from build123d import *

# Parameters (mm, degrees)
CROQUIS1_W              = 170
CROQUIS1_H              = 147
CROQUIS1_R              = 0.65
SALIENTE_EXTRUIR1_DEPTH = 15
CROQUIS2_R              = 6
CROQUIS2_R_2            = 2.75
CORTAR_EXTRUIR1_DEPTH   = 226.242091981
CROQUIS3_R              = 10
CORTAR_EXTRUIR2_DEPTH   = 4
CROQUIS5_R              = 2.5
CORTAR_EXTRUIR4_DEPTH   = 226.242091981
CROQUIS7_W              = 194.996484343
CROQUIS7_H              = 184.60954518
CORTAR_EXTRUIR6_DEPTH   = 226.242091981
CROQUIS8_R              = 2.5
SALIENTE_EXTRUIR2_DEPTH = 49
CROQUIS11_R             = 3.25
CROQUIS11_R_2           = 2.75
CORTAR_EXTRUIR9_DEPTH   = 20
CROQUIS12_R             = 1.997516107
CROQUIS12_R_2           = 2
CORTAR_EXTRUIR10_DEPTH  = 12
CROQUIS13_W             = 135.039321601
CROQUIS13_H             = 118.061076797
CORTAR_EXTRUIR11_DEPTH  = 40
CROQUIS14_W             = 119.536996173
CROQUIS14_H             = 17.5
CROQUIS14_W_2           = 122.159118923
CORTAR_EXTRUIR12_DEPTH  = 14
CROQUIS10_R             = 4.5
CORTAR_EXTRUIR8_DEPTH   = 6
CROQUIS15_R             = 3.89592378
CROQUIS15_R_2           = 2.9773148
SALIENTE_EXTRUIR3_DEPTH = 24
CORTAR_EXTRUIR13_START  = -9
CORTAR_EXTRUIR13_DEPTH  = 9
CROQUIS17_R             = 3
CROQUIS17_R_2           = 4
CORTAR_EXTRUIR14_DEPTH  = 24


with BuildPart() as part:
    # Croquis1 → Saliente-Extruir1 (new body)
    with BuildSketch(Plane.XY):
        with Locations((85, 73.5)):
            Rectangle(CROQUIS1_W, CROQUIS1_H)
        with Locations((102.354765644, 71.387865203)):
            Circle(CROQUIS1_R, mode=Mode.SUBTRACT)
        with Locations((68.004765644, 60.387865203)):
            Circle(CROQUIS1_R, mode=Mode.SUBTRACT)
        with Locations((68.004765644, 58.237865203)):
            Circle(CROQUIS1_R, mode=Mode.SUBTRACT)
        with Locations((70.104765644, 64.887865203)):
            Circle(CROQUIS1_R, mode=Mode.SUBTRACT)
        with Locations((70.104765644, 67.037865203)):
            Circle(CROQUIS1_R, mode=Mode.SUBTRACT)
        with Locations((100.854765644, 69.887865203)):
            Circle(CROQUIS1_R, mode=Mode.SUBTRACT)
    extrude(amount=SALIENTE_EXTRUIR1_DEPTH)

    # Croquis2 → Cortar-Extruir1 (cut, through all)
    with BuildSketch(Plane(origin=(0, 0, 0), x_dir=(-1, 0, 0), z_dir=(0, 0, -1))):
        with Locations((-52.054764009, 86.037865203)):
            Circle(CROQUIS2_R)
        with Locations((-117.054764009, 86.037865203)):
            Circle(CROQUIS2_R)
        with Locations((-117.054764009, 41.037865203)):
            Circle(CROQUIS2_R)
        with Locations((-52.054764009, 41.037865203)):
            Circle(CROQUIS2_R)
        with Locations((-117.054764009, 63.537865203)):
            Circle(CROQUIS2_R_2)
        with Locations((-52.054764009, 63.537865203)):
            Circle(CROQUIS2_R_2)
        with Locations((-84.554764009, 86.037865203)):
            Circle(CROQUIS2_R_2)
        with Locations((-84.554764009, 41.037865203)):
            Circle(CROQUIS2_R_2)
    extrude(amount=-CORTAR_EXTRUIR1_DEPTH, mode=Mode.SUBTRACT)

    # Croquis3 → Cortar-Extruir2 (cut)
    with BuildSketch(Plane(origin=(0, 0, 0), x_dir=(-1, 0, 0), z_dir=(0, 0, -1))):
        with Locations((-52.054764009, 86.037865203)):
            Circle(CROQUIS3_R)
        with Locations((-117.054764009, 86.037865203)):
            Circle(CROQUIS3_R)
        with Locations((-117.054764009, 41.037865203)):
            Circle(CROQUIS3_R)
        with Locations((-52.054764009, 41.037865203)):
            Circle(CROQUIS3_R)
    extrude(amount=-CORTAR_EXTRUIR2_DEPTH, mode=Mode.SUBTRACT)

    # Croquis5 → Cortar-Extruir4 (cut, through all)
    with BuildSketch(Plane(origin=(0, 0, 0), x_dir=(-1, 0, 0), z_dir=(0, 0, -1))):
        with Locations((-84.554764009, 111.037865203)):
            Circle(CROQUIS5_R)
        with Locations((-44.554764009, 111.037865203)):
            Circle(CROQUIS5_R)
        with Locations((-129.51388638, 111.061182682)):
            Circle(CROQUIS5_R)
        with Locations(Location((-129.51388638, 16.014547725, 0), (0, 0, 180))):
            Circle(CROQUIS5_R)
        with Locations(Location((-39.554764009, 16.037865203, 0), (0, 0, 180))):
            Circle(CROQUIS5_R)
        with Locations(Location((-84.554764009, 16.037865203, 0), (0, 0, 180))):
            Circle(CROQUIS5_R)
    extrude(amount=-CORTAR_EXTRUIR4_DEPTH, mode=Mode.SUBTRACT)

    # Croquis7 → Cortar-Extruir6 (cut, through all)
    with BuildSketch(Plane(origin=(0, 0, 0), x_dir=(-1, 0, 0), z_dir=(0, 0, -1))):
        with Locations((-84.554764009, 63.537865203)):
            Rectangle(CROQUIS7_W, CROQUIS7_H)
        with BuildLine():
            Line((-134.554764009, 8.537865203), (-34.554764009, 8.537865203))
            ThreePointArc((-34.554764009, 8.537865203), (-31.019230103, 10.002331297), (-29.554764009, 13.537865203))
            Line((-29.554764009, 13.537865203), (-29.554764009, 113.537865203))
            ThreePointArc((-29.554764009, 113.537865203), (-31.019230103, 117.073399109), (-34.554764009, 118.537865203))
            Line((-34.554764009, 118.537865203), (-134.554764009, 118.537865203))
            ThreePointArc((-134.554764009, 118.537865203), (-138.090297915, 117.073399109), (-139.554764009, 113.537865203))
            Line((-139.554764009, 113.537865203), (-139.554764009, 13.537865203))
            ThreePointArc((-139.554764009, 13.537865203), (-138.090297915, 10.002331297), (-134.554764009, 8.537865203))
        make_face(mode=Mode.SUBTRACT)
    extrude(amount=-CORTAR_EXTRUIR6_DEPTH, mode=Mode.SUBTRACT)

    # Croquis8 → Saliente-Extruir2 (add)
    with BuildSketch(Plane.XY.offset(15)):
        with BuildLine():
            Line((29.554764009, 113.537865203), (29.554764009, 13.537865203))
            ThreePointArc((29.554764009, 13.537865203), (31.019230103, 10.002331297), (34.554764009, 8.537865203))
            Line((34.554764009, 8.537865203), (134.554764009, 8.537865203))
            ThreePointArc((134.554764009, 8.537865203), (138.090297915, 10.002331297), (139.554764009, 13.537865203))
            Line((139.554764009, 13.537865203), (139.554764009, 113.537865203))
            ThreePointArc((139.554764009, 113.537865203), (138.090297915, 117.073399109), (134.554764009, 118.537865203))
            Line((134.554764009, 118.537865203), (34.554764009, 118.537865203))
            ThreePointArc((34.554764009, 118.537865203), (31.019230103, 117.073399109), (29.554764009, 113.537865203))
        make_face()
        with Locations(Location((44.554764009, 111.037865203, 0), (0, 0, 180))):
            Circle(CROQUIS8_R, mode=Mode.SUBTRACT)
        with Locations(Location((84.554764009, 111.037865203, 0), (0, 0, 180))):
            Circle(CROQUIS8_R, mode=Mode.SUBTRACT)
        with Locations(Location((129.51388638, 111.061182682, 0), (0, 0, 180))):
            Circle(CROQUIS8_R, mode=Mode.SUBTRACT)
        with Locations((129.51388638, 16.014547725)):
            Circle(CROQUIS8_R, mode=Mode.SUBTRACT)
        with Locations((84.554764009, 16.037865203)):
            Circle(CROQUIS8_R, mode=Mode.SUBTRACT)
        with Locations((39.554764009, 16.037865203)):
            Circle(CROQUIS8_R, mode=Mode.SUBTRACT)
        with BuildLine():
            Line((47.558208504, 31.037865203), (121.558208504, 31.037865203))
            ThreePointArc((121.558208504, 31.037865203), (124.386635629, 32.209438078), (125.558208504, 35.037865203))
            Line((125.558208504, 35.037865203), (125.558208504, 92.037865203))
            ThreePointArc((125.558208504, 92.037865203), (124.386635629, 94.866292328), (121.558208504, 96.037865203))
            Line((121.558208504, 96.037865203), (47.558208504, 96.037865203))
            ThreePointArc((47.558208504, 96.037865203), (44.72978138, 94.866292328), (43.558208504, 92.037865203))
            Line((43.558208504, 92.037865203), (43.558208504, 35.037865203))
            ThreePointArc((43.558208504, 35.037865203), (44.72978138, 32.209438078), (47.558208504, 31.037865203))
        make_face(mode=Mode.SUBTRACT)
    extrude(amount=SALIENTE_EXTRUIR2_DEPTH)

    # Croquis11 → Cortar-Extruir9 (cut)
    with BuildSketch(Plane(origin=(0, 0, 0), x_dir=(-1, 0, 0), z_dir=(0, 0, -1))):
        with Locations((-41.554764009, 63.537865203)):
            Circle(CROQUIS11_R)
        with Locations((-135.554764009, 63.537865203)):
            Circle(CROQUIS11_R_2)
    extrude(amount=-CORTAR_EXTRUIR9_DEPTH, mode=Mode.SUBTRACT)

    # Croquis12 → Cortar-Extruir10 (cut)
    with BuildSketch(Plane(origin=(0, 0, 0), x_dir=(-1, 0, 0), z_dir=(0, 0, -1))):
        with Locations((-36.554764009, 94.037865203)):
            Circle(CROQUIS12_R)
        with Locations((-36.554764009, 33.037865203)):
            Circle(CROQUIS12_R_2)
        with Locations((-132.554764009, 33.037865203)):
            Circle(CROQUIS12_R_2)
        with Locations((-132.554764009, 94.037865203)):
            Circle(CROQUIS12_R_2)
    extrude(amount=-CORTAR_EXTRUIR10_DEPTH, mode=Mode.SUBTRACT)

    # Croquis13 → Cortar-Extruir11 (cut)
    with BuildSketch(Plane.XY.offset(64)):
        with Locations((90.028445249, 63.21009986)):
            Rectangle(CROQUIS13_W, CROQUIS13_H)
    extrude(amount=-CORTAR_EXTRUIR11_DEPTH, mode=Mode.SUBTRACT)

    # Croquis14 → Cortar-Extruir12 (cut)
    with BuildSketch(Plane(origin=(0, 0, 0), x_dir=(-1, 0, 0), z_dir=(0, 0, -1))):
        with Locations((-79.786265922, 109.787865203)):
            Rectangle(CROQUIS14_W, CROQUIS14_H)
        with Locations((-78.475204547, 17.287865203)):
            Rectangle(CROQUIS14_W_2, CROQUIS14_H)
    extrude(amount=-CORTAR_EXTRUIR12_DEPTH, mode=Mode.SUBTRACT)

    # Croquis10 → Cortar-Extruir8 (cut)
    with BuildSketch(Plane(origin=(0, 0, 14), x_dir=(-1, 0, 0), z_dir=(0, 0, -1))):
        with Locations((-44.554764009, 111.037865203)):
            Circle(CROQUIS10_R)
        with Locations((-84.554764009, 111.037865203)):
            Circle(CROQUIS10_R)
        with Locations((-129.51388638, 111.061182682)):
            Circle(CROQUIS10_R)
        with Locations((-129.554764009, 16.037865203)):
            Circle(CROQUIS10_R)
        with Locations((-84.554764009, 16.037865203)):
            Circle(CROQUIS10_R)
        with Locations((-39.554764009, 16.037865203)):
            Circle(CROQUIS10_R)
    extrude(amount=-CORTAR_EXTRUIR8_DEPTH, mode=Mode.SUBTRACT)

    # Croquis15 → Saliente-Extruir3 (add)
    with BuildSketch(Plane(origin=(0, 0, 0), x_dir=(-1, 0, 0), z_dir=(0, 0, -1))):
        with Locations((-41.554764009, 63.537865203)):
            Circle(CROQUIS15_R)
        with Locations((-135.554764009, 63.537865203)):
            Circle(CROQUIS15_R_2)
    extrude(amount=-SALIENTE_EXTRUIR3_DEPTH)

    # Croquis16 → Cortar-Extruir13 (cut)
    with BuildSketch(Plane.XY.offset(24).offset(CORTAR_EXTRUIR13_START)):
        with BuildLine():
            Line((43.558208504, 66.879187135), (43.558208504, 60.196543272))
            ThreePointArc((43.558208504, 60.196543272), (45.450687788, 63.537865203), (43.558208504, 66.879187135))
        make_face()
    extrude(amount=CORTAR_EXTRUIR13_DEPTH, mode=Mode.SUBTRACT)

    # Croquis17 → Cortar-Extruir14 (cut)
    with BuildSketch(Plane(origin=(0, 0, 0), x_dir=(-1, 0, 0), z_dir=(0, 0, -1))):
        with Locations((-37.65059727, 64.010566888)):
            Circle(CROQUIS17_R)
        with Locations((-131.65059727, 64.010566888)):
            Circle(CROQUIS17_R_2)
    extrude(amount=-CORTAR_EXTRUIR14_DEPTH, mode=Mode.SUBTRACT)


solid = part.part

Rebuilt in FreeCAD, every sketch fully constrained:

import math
import FreeCAD as App
import Part
import Sketcher
from FreeCAD import Vector

doc = App.newDocument("Part")
params = doc.addObject("Spreadsheet::Sheet", "Params")
for row, (alias, value) in enumerate([
    ("sketch1_diameter", "1.3 mm"),
    ("sketch1_width", "170 mm"),
    ("sketch1_height", "147 mm"),
    ("pad1_length", "15 mm"),
    ("sketch2_diameter", "12 mm"),
    ("sketch2_diameter2", "5.5 mm"),
    ("sketch3_diameter", "20 mm"),
    ("pocket2_length", "4 mm"),
    ("sketch4_diameter", "5 mm"),
    ("sketch5_radius", "5 mm"),
    ("sketch5_width", "100 mm"),
    ("sketch6_diameter", "5 mm"),
    ("sketch6_radius", "5 mm"),
    ("sketch6_radius2", "4 mm"),
    ("sketch6_width", "100 mm"),
    ("sketch6_width2", "74 mm"),
    ("pad2_length", "49 mm"),
    ("sketch7_diameter", "6.5 mm"),
    ("sketch7_diameter2", "5.5 mm"),
    ("pocket5_length", "20 mm"),
    ("sketch8_diameter", "4 mm"),
    ("pocket6_length", "12 mm"),
    ("pocket7_length", "40 mm"),
    ("sketch10_height", "17.5 mm"),
    ("pocket8_length", "14 mm"),
    ("sketch11_diameter", "9 mm"),
    ("pocket9_length", "6 mm"),
    ("pad3_length", "24 mm"),
    ("pocket10_length", "9 mm"),
    ("sketch14_diameter", "6 mm"),
    ("sketch14_diameter2", "8 mm"),
    ("pocket11_length", "24 mm"),
], start=1):
    params.set(f"A{row}", alias)
    params.set(f"B{row}", "=" + value)
    params.setAlias(f"B{row}", alias)

body = doc.addObject("PartDesign::Body", "Body")

sketch1 = body.newObject("Sketcher::SketchObject", "Sketch")
sketch1.AttachmentSupport = (doc.getObject("XY_Plane"), [""])
sketch1.MapMode = "FlatFace"
sketch1.addGeometry(Part.LineSegment(Vector(0, 147, 0), Vector(0, 0, 0)), False)
sketch1.addGeometry(Part.LineSegment(Vector(0, 0, 0), Vector(170, 0, 0)), False)
sketch1.addGeometry(Part.LineSegment(Vector(170, 0, 0), Vector(170, 147, 0)), False)
sketch1.addGeometry(Part.LineSegment(Vector(170, 147, 0), Vector(0, 147, 0)), False)
sketch1.addGeometry(Part.Circle(Vector(68, 58.2, 0), Vector(0, 0, 1), 0.7), False)
sketch1.addGeometry(Part.Circle(Vector(68, 60.4, 0), Vector(0, 0, 1), 0.7), False)
sketch1.addGeometry(Part.Circle(Vector(70.1, 64.9, 0), Vector(0, 0, 1), 0.7), False)
sketch1.addGeometry(Part.Circle(Vector(70.1, 67, 0), Vector(0, 0, 1), 0.7), False)
sketch1.addGeometry(Part.Circle(Vector(100.9, 69.9, 0), Vector(0, 0, 1), 0.7), False)
sketch1.addGeometry(Part.Circle(Vector(102.4, 71.4, 0), Vector(0, 0, 1), 0.7), False)
sketch1.addConstraint(Sketcher.Constraint("Coincident", 0, 2, 1, 1))
sketch1.addConstraint(Sketcher.Constraint("Coincident", 1, 2, 2, 1))
sketch1.addConstraint(Sketcher.Constraint("Coincident", 2, 2, 3, 1))
sketch1.addConstraint(Sketcher.Constraint("Coincident", 3, 2, 0, 1))
sketch1.addConstraint(Sketcher.Constraint("Vertical", 0))
sketch1.addConstraint(Sketcher.Constraint("Horizontal", 1))
sketch1.addConstraint(Sketcher.Constraint("Vertical", 2))
sketch1.addConstraint(Sketcher.Constraint("Horizontal", 3))
sketch1.addConstraint(Sketcher.Constraint("Coincident", 0, 2, -1, 1))
sketch1.addConstraint(Sketcher.Constraint("Equal", 4, 5))
sketch1.addConstraint(Sketcher.Constraint("Equal", 5, 6))
sketch1.addConstraint(Sketcher.Constraint("Equal", 6, 7))
sketch1.addConstraint(Sketcher.Constraint("Equal", 7, 8))
sketch1.addConstraint(Sketcher.Constraint("Equal", 8, 9))
sketch1.addConstraint(Sketcher.Constraint("Vertical", 4, 3, 5, 3))
sketch1.addConstraint(Sketcher.Constraint("Vertical", 6, 3, 7, 3))
sketch1.addConstraint(Sketcher.Constraint("Diameter", 4, 1.3))
sketch1.addConstraint(Sketcher.Constraint("DistanceX", 1, 1, 1, 2, 170.0))
sketch1.addConstraint(Sketcher.Constraint("DistanceY", 0, 2, 0, 1, 147.0))
sketch1.addConstraint(Sketcher.Constraint("DistanceY", 6, 3, 8, 3, 5.0))
sketch1.addConstraint(Sketcher.Constraint("DistanceY", 5, 3, 9, 3, 11.0))
sketch1.addConstraint(Sketcher.Constraint("DistanceX", 5, 3, 6, 3, 2.1))
sketch1.addConstraint(Sketcher.Constraint("DistanceY", 5, 3, 6, 3, 4.5))
sketch1.addConstraint(Sketcher.Constraint("DistanceY", 4, 3, 7, 3, 8.8))
sketch1.addConstraint(Sketcher.Constraint("DistanceX", 8, 3, 9, 3, 1.5))
sketch1.addConstraint(Sketcher.Constraint("DistanceY", 4, 3, 5, 3, 2.15))
sketch1.addConstraint(Sketcher.Constraint("DistanceX", 7, 3, 8, 3, 30.75))
sketch1.addConstraint(Sketcher.Constraint("DistanceX", -1, 1, 4, 3, 68.004766))
sketch1.addConstraint(Sketcher.Constraint("DistanceY", -1, 1, 4, 3, 58.237865))
sketch1.setExpression("Constraints[16]", "Params.sketch1_diameter")
sketch1.setExpression("Constraints[17]", "Params.sketch1_width")
sketch1.setExpression("Constraints[18]", "Params.sketch1_height")
pad1 = body.newObject("PartDesign::Pad", "Pad")
pad1.Profile = sketch1
pad1.setExpression("Length", "Params.pad1_length")

sketch2 = body.newObject("Sketcher::SketchObject", "Sketch001")
sketch2.AttachmentSupport = (doc.getObject("XY_Plane"), [""])
sketch2.MapMode = "FlatFace"
sketch2.addGeometry(Part.Circle(Vector(52.1, 86, 0), Vector(0, 0, 1), 6), False)
sketch2.addGeometry(Part.Circle(Vector(117.1, 86, 0), Vector(0, 0, 1), 6), False)
sketch2.addGeometry(Part.Circle(Vector(117.1, 41, 0), Vector(0, 0, 1), 6), False)
sketch2.addGeometry(Part.Circle(Vector(52.1, 41, 0), Vector(0, 0, 1), 6), False)
sketch2.addGeometry(Part.Circle(Vector(117.1, 63.5, 0), Vector(0, 0, 1), 2.8), False)
sketch2.addGeometry(Part.Circle(Vector(52.1, 63.5, 0), Vector(0, 0, 1), 2.8), False)
sketch2.addGeometry(Part.Circle(Vector(84.6, 86, 0), Vector(0, 0, 1), 2.8), False)
sketch2.addGeometry(Part.Circle(Vector(84.6, 41, 0), Vector(0, 0, 1), 2.8), False)
sketch2.addConstraint(Sketcher.Constraint("Equal", 0, 1))
sketch2.addConstraint(Sketcher.Constraint("Equal", 1, 2))
sketch2.addConstraint(Sketcher.Constraint("Equal", 2, 3))
sketch2.addConstraint(Sketcher.Constraint("Equal", 4, 5))
sketch2.addConstraint(Sketcher.Constraint("Equal", 5, 6))
sketch2.addConstraint(Sketcher.Constraint("Equal", 6, 7))
sketch2.addConstraint(Sketcher.Constraint("Horizontal", 0, 3, 1, 3))
sketch2.addConstraint(Sketcher.Constraint("Horizontal", 2, 3, 3, 3))
sketch2.addConstraint(Sketcher.Constraint("Horizontal", 4, 3, 5, 3))
sketch2.addConstraint(Sketcher.Constraint("Horizontal", 1, 3, 6, 3))
sketch2.addConstraint(Sketcher.Constraint("Horizontal", 3, 3, 7, 3))
sketch2.addConstraint(Sketcher.Constraint("Vertical", 1, 3, 2, 3))
sketch2.addConstraint(Sketcher.Constraint("Vertical", 0, 3, 3, 3))
sketch2.addConstraint(Sketcher.Constraint("Vertical", 2, 3, 4, 3))
sketch2.addConstraint(Sketcher.Constraint("Vertical", 3, 3, 5, 3))
sketch2.addConstraint(Sketcher.Constraint("Vertical", 6, 3, 7, 3))
sketch2.addConstraint(Sketcher.Constraint("Diameter", 0, 12.0))
sketch2.addConstraint(Sketcher.Constraint("Diameter", 4, 5.5))
sketch2.addConstraint(Sketcher.Constraint("DistanceX", 0, 3, 1, 3, 65.0))
sketch2.addConstraint(Sketcher.Constraint("DistanceY", 2, 3, 1, 3, 45.0))
sketch2.addConstraint(Sketcher.Constraint("DistanceY", 4, 3, 1, 3, 22.5))
sketch2.addConstraint(Sketcher.Constraint("DistanceX", 0, 3, 6, 3, 32.5))
sketch2.addConstraint(Sketcher.Constraint("DistanceX", -1, 1, 0, 3, 52.054764))
sketch2.addConstraint(Sketcher.Constraint("DistanceY", -1, 1, 0, 3, 86.037865))
sketch2.setExpression("Constraints[16]", "Params.sketch2_diameter")
sketch2.setExpression("Constraints[17]", "Params.sketch2_diameter2")
pocket1 = body.newObject("PartDesign::Pocket", "Pocket")
pocket1.Profile = sketch2
pocket1.Type = "ThroughAll"
pocket1.Reversed = True

sketch3 = body.newObject("Sketcher::SketchObject", "Sketch002")
sketch3.AttachmentSupport = (doc.getObject("XY_Plane"), [""])
sketch3.MapMode = "FlatFace"
sketch3.addGeometry(Part.Circle(Vector(52, 86, 0), Vector(0, 0, 1), 10), False)
sketch3.addGeometry(Part.Circle(Vector(117, 86, 0), Vector(0, 0, 1), 10), False)
sketch3.addGeometry(Part.Circle(Vector(117, 41, 0), Vector(0, 0, 1), 10), False)
sketch3.addGeometry(Part.Circle(Vector(52, 41, 0), Vector(0, 0, 1), 10), False)
sketch3.addConstraint(Sketcher.Constraint("Equal", 0, 1))
sketch3.addConstraint(Sketcher.Constraint("Equal", 1, 2))
sketch3.addConstraint(Sketcher.Constraint("Equal", 2, 3))
sketch3.addConstraint(Sketcher.Constraint("Horizontal", 0, 3, 1, 3))
sketch3.addConstraint(Sketcher.Constraint("Horizontal", 2, 3, 3, 3))
sketch3.addConstraint(Sketcher.Constraint("Vertical", 1, 3, 2, 3))
sketch3.addConstraint(Sketcher.Constraint("Vertical", 0, 3, 3, 3))
sketch3.addConstraint(Sketcher.Constraint("Diameter", 0, 20.0))
sketch3.addConstraint(Sketcher.Constraint("DistanceX", 0, 3, 1, 3, 65.0))
sketch3.addConstraint(Sketcher.Constraint("DistanceY", 2, 3, 1, 3, 45.0))
sketch3.addConstraint(Sketcher.Constraint("DistanceX", -1, 1, 0, 3, 52.054764))
sketch3.addConstraint(Sketcher.Constraint("DistanceY", -1, 1, 0, 3, 86.037865))
sketch3.setExpression("Constraints[7]", "Params.sketch3_diameter")
pocket2 = body.newObject("PartDesign::Pocket", "Pocket001")
pocket2.Profile = sketch3
pocket2.setExpression("Length", "Params.pocket2_length")
pocket2.Reversed = True

sketch4 = body.newObject("Sketcher::SketchObject", "Sketch003")
sketch4.AttachmentSupport = (doc.getObject("XY_Plane"), [""])
sketch4.MapMode = "FlatFace"
sketch4.addGeometry(Part.Circle(Vector(84.6, 111, 0), Vector(0, 0, 1), 2.5), False)
sketch4.addGeometry(Part.Circle(Vector(44.6, 111, 0), Vector(0, 0, 1), 2.5), False)
sketch4.addGeometry(Part.Circle(Vector(129.5, 111.1, 0), Vector(0, 0, 1), 2.5), False)
sketch4.addGeometry(Part.Circle(Vector(129.5, 16, 0), Vector(0, 0, 1), 2.5), False)
sketch4.addGeometry(Part.Circle(Vector(39.6, 16, 0), Vector(0, 0, 1), 2.5), False)
sketch4.addGeometry(Part.Circle(Vector(84.6, 16, 0), Vector(0, 0, 1), 2.5), False)
sketch4.addConstraint(Sketcher.Constraint("Equal", 0, 1))
sketch4.addConstraint(Sketcher.Constraint("Equal", 1, 2))
sketch4.addConstraint(Sketcher.Constraint("Equal", 2, 3))
sketch4.addConstraint(Sketcher.Constraint("Equal", 3, 4))
sketch4.addConstraint(Sketcher.Constraint("Equal", 4, 5))
sketch4.addConstraint(Sketcher.Constraint("Horizontal", 0, 3, 1, 3))
sketch4.addConstraint(Sketcher.Constraint("Horizontal", 4, 3, 5, 3))
sketch4.addConstraint(Sketcher.Constraint("Vertical", 2, 3, 3, 3))
sketch4.addConstraint(Sketcher.Constraint("Vertical", 0, 3, 5, 3))
sketch4.addConstraint(Sketcher.Constraint("Diameter", 0, 5.0))
sketch4.addConstraint(Sketcher.Constraint("DistanceX", 1, 3, 0, 3, 40.0))
sketch4.addConstraint(Sketcher.Constraint("DistanceX", 4, 3, 1, 3, 5.0))
sketch4.addConstraint(Sketcher.Constraint("DistanceY", 4, 3, 1, 3, 95.0))
sketch4.addConstraint(Sketcher.Constraint("DistanceX", -1, 1, 0, 3, 84.554764))
sketch4.addConstraint(Sketcher.Constraint("DistanceY", -1, 1, 0, 3, 111.037865))
sketch4.addConstraint(Sketcher.Constraint("DistanceX", -1, 1, 2, 3, 129.513886))
sketch4.addConstraint(Sketcher.Constraint("DistanceY", -1, 1, 2, 3, 111.061183))
sketch4.addConstraint(Sketcher.Constraint("DistanceY", -1, 1, 3, 3, 16.014548))
sketch4.setExpression("Constraints[9]", "Params.sketch4_diameter")
pocket3 = body.newObject("PartDesign::Pocket", "Pocket002")
pocket3.Profile = sketch4
pocket3.Type = "ThroughAll"
pocket3.Reversed = True

sketch5 = body.newObject("Sketcher::SketchObject", "Sketch004")
sketch5.AttachmentSupport = (doc.getObject("XY_Plane"), [""])
sketch5.MapMode = "FlatFace"
sketch5.addGeometry(Part.LineSegment(Vector(182, 156, 0), Vector(182, -29, 0)), False)
sketch5.addGeometry(Part.LineSegment(Vector(182, -29, 0), Vector(-13, -29, 0)), False)
sketch5.addGeometry(Part.LineSegment(Vector(-13, -29, 0), Vector(-13, 156, 0)), False)
sketch5.addGeometry(Part.LineSegment(Vector(-13, 156, 0), Vector(182, 156, 0)), False)
sketch5.addGeometry(Part.LineSegment(Vector(35, 9, 0), Vector(135, 9, 0)), False)
sketch5.addGeometry(Part.ArcOfCircle(Part.Circle(Vector(135, 14, 0), Vector(0, 0, 1), 5), math.radians(-90), math.radians(0)), False)
sketch5.addGeometry(Part.LineSegment(Vector(140, 14, 0), Vector(140, 114, 0)), False)
sketch5.addGeometry(Part.ArcOfCircle(Part.Circle(Vector(135, 114, 0), Vector(0, 0, 1), 5), math.radians(0), math.radians(90)), False)
sketch5.addGeometry(Part.LineSegment(Vector(135, 119, 0), Vector(35, 119, 0)), False)
sketch5.addGeometry(Part.ArcOfCircle(Part.Circle(Vector(35, 114, 0), Vector(0, 0, 1), 5), math.radians(90), math.radians(180)), False)
sketch5.addGeometry(Part.LineSegment(Vector(30, 114, 0), Vector(30, 14, 0)), False)
sketch5.addGeometry(Part.ArcOfCircle(Part.Circle(Vector(35, 14, 0), Vector(0, 0, 1), 5), math.radians(180), math.radians(270)), False)
sketch5.addConstraint(Sketcher.Constraint("Coincident", 0, 2, 1, 1))
sketch5.addConstraint(Sketcher.Constraint("Coincident", 1, 2, 2, 1))
sketch5.addConstraint(Sketcher.Constraint("Coincident", 2, 2, 3, 1))
sketch5.addConstraint(Sketcher.Constraint("Coincident", 3, 2, 0, 1))
sketch5.addConstraint(Sketcher.Constraint("Tangent", 4, 2, 5, 1))
sketch5.addConstraint(Sketcher.Constraint("Tangent", 5, 2, 6, 1))
sketch5.addConstraint(Sketcher.Constraint("Tangent", 6, 2, 7, 1))
sketch5.addConstraint(Sketcher.Constraint("Tangent", 7, 2, 8, 1))
sketch5.addConstraint(Sketcher.Constraint("Tangent", 8, 2, 9, 1))
sketch5.addConstraint(Sketcher.Constraint("Tangent", 9, 2, 10, 1))
sketch5.addConstraint(Sketcher.Constraint("Tangent", 10, 2, 11, 1))
sketch5.addConstraint(Sketcher.Constraint("Tangent", 11, 2, 4, 1))
sketch5.addConstraint(Sketcher.Constraint("Vertical", 0))
sketch5.addConstraint(Sketcher.Constraint("Horizontal", 1))
sketch5.addConstraint(Sketcher.Constraint("Vertical", 2))
sketch5.addConstraint(Sketcher.Constraint("Horizontal", 3))
sketch5.addConstraint(Sketcher.Constraint("Horizontal", 4))
sketch5.addConstraint(Sketcher.Constraint("Vertical", 6))
sketch5.addConstraint(Sketcher.Constraint("Horizontal", 8))
sketch5.addConstraint(Sketcher.Constraint("Vertical", 10))
sketch5.addConstraint(Sketcher.Constraint("Equal", 5, 7))
sketch5.addConstraint(Sketcher.Constraint("Equal", 7, 9))
sketch5.addConstraint(Sketcher.Constraint("Equal", 9, 11))
sketch5.addConstraint(Sketcher.Constraint("Equal", 8, 6))
sketch5.addConstraint(Sketcher.Constraint("Radius", 5, 5.0))
sketch5.addConstraint(Sketcher.Constraint("DistanceX", 4, 1, 4, 2, 100.0))
sketch5.addConstraint(Sketcher.Constraint("DistanceX", 1, 2, 1, 1, 194.996484))
sketch5.addConstraint(Sketcher.Constraint("DistanceY", 0, 2, 0, 1, 184.609545))
sketch5.addConstraint(Sketcher.Constraint("DistanceX", 1, 2, -1, 1, 12.943478))
sketch5.addConstraint(Sketcher.Constraint("DistanceX", -1, 1, 5, 3, 134.554764))
sketch5.addConstraint(Sketcher.Constraint("DistanceY", -1, 1, 5, 3, 13.537865))
sketch5.addConstraint(Sketcher.Constraint("DistanceY", 0, 2, -1, 1, 28.766907))
sketch5.setExpression("Constraints[24]", "Params.sketch5_radius")
sketch5.setExpression("Constraints[25]", "Params.sketch5_width")
pocket4 = body.newObject("PartDesign::Pocket", "Pocket003")
pocket4.Profile = sketch5
pocket4.Type = "ThroughAll"
pocket4.Reversed = True

sketch6 = body.newObject("Sketcher::SketchObject", "Sketch005")
sketch6.AttachmentSupport = (doc.getObject("XY_Plane"), [""])
sketch6.MapMode = "FlatFace"
sketch6.AttachmentOffset = App.Placement(Vector(0, 0, 15), App.Rotation())
sketch6.addGeometry(Part.LineSegment(Vector(29.6, 113.5, 0), Vector(29.6, 13.5, 0)), False)
sketch6.addGeometry(Part.ArcOfCircle(Part.Circle(Vector(34.6, 13.5, 0), Vector(0, 0, 1), 5), math.radians(180), math.radians(270)), False)
sketch6.addGeometry(Part.LineSegment(Vector(34.6, 8.5, 0), Vector(134.6, 8.5, 0)), False)
sketch6.addGeometry(Part.ArcOfCircle(Part.Circle(Vector(134.6, 13.5, 0), Vector(0, 0, 1), 5), math.radians(-90), math.radians(0)), False)
sketch6.addGeometry(Part.LineSegment(Vector(139.6, 13.5, 0), Vector(139.6, 113.5, 0)), False)
sketch6.addGeometry(Part.ArcOfCircle(Part.Circle(Vector(134.6, 113.5, 0), Vector(0, 0, 1), 5), math.radians(0), math.radians(90)), False)
sketch6.addGeometry(Part.LineSegment(Vector(134.6, 118.5, 0), Vector(34.6, 118.5, 0)), False)
sketch6.addGeometry(Part.ArcOfCircle(Part.Circle(Vector(34.6, 113.5, 0), Vector(0, 0, 1), 5), math.radians(90), math.radians(180)), False)
sketch6.addGeometry(Part.Circle(Vector(39.6, 16, 0), Vector(0, 0, 1), 2.5), False)
sketch6.addGeometry(Part.Circle(Vector(84.6, 16, 0), Vector(0, 0, 1), 2.5), False)
sketch6.addGeometry(Part.Circle(Vector(129.5, 16, 0), Vector(0, 0, 1), 2.5), False)
sketch6.addGeometry(Part.LineSegment(Vector(121.6, 31, 0), Vector(47.6, 31, 0)), False)
sketch6.addGeometry(Part.ArcOfCircle(Part.Circle(Vector(47.6, 35, 0), Vector(0, 0, 1), 4), math.radians(-180), math.radians(-90)), False)
sketch6.addGeometry(Part.LineSegment(Vector(43.6, 35, 0), Vector(43.6, 92, 0)), False)
sketch6.addGeometry(Part.ArcOfCircle(Part.Circle(Vector(47.6, 92, 0), Vector(0, 0, 1), 4), math.radians(90), math.radians(180)), False)
sketch6.addGeometry(Part.LineSegment(Vector(47.6, 96, 0), Vector(121.6, 96, 0)), False)
sketch6.addGeometry(Part.ArcOfCircle(Part.Circle(Vector(121.6, 92, 0), Vector(0, 0, 1), 4), math.radians(0), math.radians(90)), False)
sketch6.addGeometry(Part.LineSegment(Vector(125.6, 92, 0), Vector(125.6, 35, 0)), False)
sketch6.addGeometry(Part.ArcOfCircle(Part.Circle(Vector(121.6, 35, 0), Vector(0, 0, 1), 4), math.radians(-90), math.radians(0)), False)
sketch6.addGeometry(Part.Circle(Vector(44.6, 111, 0), Vector(0, 0, 1), 2.5), False)
sketch6.addGeometry(Part.Circle(Vector(84.6, 111, 0), Vector(0, 0, 1), 2.5), False)
sketch6.addGeometry(Part.Circle(Vector(129.5, 111.1, 0), Vector(0, 0, 1), 2.5), False)
sketch6.addConstraint(Sketcher.Constraint("Tangent", 0, 2, 1, 1))
sketch6.addConstraint(Sketcher.Constraint("Tangent", 1, 2, 2, 1))
sketch6.addConstraint(Sketcher.Constraint("Tangent", 2, 2, 3, 1))
sketch6.addConstraint(Sketcher.Constraint("Tangent", 3, 2, 4, 1))
sketch6.addConstraint(Sketcher.Constraint("Tangent", 4, 2, 5, 1))
sketch6.addConstraint(Sketcher.Constraint("Tangent", 5, 2, 6, 1))
sketch6.addConstraint(Sketcher.Constraint("Tangent", 6, 2, 7, 1))
sketch6.addConstraint(Sketcher.Constraint("Tangent", 7, 2, 0, 1))
sketch6.addConstraint(Sketcher.Constraint("Tangent", 11, 2, 12, 2))
sketch6.addConstraint(Sketcher.Constraint("Tangent", 12, 1, 13, 1))
sketch6.addConstraint(Sketcher.Constraint("Tangent", 13, 2, 14, 2))
sketch6.addConstraint(Sketcher.Constraint("Tangent", 14, 1, 15, 1))
sketch6.addConstraint(Sketcher.Constraint("Tangent", 15, 2, 16, 2))
sketch6.addConstraint(Sketcher.Constraint("Tangent", 16, 1, 17, 1))
sketch6.addConstraint(Sketcher.Constraint("Tangent", 17, 2, 18, 2))
sketch6.addConstraint(Sketcher.Constraint("Tangent", 18, 1, 11, 1))
sketch6.addConstraint(Sketcher.Constraint("Vertical", 0))
sketch6.addConstraint(Sketcher.Constraint("Horizontal", 2))
sketch6.addConstraint(Sketcher.Constraint("Vertical", 4))
sketch6.addConstraint(Sketcher.Constraint("Horizontal", 6))
sketch6.addConstraint(Sketcher.Constraint("Horizontal", 11))
sketch6.addConstraint(Sketcher.Constraint("Vertical", 13))
sketch6.addConstraint(Sketcher.Constraint("Horizontal", 15))
sketch6.addConstraint(Sketcher.Constraint("Vertical", 17))
sketch6.addConstraint(Sketcher.Constraint("Equal", 1, 3))
sketch6.addConstraint(Sketcher.Constraint("Equal", 3, 5))
sketch6.addConstraint(Sketcher.Constraint("Equal", 5, 7))
sketch6.addConstraint(Sketcher.Constraint("Equal", 8, 9))
sketch6.addConstraint(Sketcher.Constraint("Equal", 9, 10))
sketch6.addConstraint(Sketcher.Constraint("Equal", 12, 14))
sketch6.addConstraint(Sketcher.Constraint("Equal", 14, 16))
sketch6.addConstraint(Sketcher.Constraint("Equal", 16, 18))
sketch6.addConstraint(Sketcher.Constraint("Equal", 10, 19))
sketch6.addConstraint(Sketcher.Constraint("Equal", 19, 20))
sketch6.addConstraint(Sketcher.Constraint("Equal", 20, 21))
sketch6.addConstraint(Sketcher.Constraint("Horizontal", 8, 3, 9, 3))
sketch6.addConstraint(Sketcher.Constraint("Horizontal", 19, 3, 20, 3))
sketch6.addConstraint(Sketcher.Constraint("Vertical", 9, 3, 20, 3))
sketch6.addConstraint(Sketcher.Constraint("Vertical", 10, 3, 21, 3))
sketch6.addConstraint(Sketcher.Constraint("Equal", 6, 0))
sketch6.addConstraint(Sketcher.Constraint("Diameter", 8, 5.0))
sketch6.addConstraint(Sketcher.Constraint("Radius", 1, 5.0))
sketch6.addConstraint(Sketcher.Constraint("Radius", 12, 4.0))
sketch6.addConstraint(Sketcher.Constraint("DistanceX", 2, 1, 2, 2, 100.0))
sketch6.addConstraint(Sketcher.Constraint("DistanceX", 11, 2, 11, 1, 74.0))
sketch6.addConstraint(Sketcher.Constraint("DistanceY", 13, 1, 13, 2, 57.0))
sketch6.addConstraint(Sketcher.Constraint("DistanceX", 1, 3, 8, 3, 5.0))
sketch6.addConstraint(Sketcher.Constraint("DistanceX", 8, 3, 9, 3, 45.0))
sketch6.addConstraint(Sketcher.Constraint("DistanceY", 8, 3, 12, 3, 19.0))
sketch6.addConstraint(Sketcher.Constraint("DistanceX", 7, 3, 19, 3, 10.0))
sketch6.addConstraint(Sketcher.Constraint("DistanceY", 14, 3, 19, 3, 19.0))
sketch6.addConstraint(Sketcher.Constraint("DistanceY", 1, 3, 8, 3, 2.5))
sketch6.addConstraint(Sketcher.Constraint("DistanceX", -1, 1, 12, 3, 47.558209))
sketch6.addConstraint(Sketcher.Constraint("DistanceX", -1, 1, 1, 3, 34.554764))
sketch6.addConstraint(Sketcher.Constraint("DistanceY", -1, 1, 1, 3, 13.537865))
sketch6.addConstraint(Sketcher.Constraint("DistanceX", -1, 1, 10, 3, 129.513886))
sketch6.addConstraint(Sketcher.Constraint("DistanceY", -1, 1, 10, 3, 16.014548))
sketch6.addConstraint(Sketcher.Constraint("DistanceY", -1, 1, 21, 3, 111.061183))
sketch6.setExpression("Constraints[40]", "Params.sketch6_diameter")
sketch6.setExpression("Constraints[41]", "Params.sketch6_radius")
sketch6.setExpression("Constraints[42]", "Params.sketch6_radius2")
sketch6.setExpression("Constraints[43]", "Params.sketch6_width")
sketch6.setExpression("Constraints[44]", "Params.sketch6_width2")
pad2 = body.newObject("PartDesign::Pad", "Pad001")
pad2.Profile = sketch6
pad2.setExpression("Length", "Params.pad2_length")

sketch7 = body.newObject("Sketcher::SketchObject", "Sketch006")
sketch7.AttachmentSupport = (doc.getObject("XY_Plane"), [""])
sketch7.MapMode = "FlatFace"
sketch7.addGeometry(Part.Circle(Vector(41.6, 63.5, 0), Vector(0, 0, 1), 3.2), False)
sketch7.addGeometry(Part.Circle(Vector(135.6, 63.5, 0), Vector(0, 0, 1), 2.8), False)
sketch7.addConstraint(Sketcher.Constraint("Horizontal", 0, 3, 1, 3))
sketch7.addConstraint(Sketcher.Constraint("Diameter", 0, 6.5))
sketch7.addConstraint(Sketcher.Constraint("Diameter", 1, 5.5))
sketch7.addConstraint(Sketcher.Constraint("DistanceX", 0, 3, 1, 3, 94.0))
sketch7.addConstraint(Sketcher.Constraint("DistanceX", -1, 1, 0, 3, 41.554764))
sketch7.addConstraint(Sketcher.Constraint("DistanceY", -1, 1, 0, 3, 63.537865))
sketch7.setExpression("Constraints[1]", "Params.sketch7_diameter")
sketch7.setExpression("Constraints[2]", "Params.sketch7_diameter2")
pocket5 = body.newObject("PartDesign::Pocket", "Pocket004")
pocket5.Profile = sketch7
pocket5.setExpression("Length", "Params.pocket5_length")
pocket5.Reversed = True

sketch8 = body.newObject("Sketcher::SketchObject", "Sketch007")
sketch8.AttachmentSupport = (doc.getObject("XY_Plane"), [""])
sketch8.MapMode = "FlatFace"
sketch8.addGeometry(Part.Circle(Vector(36.6, 94, 0), Vector(0, 0, 1), 2), False)
sketch8.addGeometry(Part.Circle(Vector(36.6, 33, 0), Vector(0, 0, 1), 2), False)
sketch8.addGeometry(Part.Circle(Vector(132.6, 33, 0), Vector(0, 0, 1), 2), False)
sketch8.addGeometry(Part.Circle(Vector(132.6, 94, 0), Vector(0, 0, 1), 2), False)
sketch8.addConstraint(Sketcher.Constraint("Equal", 1, 2))
sketch8.addConstraint(Sketcher.Constraint("Equal", 2, 3))
sketch8.addConstraint(Sketcher.Constraint("Horizontal", 1, 3, 2, 3))
sketch8.addConstraint(Sketcher.Constraint("Horizontal", 0, 3, 3, 3))
sketch8.addConstraint(Sketcher.Constraint("Vertical", 0, 3, 1, 3))
sketch8.addConstraint(Sketcher.Constraint("Vertical", 2, 3, 3, 3))
sketch8.addConstraint(Sketcher.Constraint("Diameter", 1, 4.0))
sketch8.addConstraint(Sketcher.Constraint("DistanceY", 1, 3, 0, 3, 61.0))
sketch8.addConstraint(Sketcher.Constraint("DistanceX", 1, 3, 2, 3, 96.0))
sketch8.addConstraint(Sketcher.Constraint("Diameter", 0, 3.995032))
sketch8.addConstraint(Sketcher.Constraint("DistanceX", -1, 1, 0, 3, 36.554764))
sketch8.addConstraint(Sketcher.Constraint("DistanceY", -1, 1, 0, 3, 94.037865))
sketch8.setExpression("Constraints[6]", "Params.sketch8_diameter")
pocket6 = body.newObject("PartDesign::Pocket", "Pocket005")
pocket6.Profile = sketch8
pocket6.setExpression("Length", "Params.pocket6_length")
pocket6.Reversed = True

sketch9 = body.newObject("Sketcher::SketchObject", "Sketch008")
sketch9.AttachmentSupport = (doc.getObject("XY_Plane"), [""])
sketch9.MapMode = "FlatFace"
sketch9.AttachmentOffset = App.Placement(Vector(0, 0, 64), App.Rotation())
sketch9.addGeometry(Part.LineSegment(Vector(23, 122, 0), Vector(23, 4, 0)), False)
sketch9.addGeometry(Part.LineSegment(Vector(23, 4, 0), Vector(158, 4, 0)), False)
sketch9.addGeometry(Part.LineSegment(Vector(158, 4, 0), Vector(158, 122, 0)), False)
sketch9.addGeometry(Part.LineSegment(Vector(158, 122, 0), Vector(23, 122, 0)), False)
sketch9.addConstraint(Sketcher.Constraint("Coincident", 0, 2, 1, 1))
sketch9.addConstraint(Sketcher.Constraint("Coincident", 1, 2, 2, 1))
sketch9.addConstraint(Sketcher.Constraint("Coincident", 2, 2, 3, 1))
sketch9.addConstraint(Sketcher.Constraint("Coincident", 3, 2, 0, 1))
sketch9.addConstraint(Sketcher.Constraint("Vertical", 0))
sketch9.addConstraint(Sketcher.Constraint("Horizontal", 1))
sketch9.addConstraint(Sketcher.Constraint("Vertical", 2))
sketch9.addConstraint(Sketcher.Constraint("Horizontal", 3))
sketch9.addConstraint(Sketcher.Constraint("DistanceX", 1, 1, 1, 2, 135.039322))
sketch9.addConstraint(Sketcher.Constraint("DistanceY", 0, 2, 0, 1, 118.061077))
sketch9.addConstraint(Sketcher.Constraint("DistanceY", -1, 1, 0, 2, 4.179561))
sketch9.addConstraint(Sketcher.Constraint("DistanceX", -1, 1, 0, 2, 22.508784))
pocket7 = body.newObject("PartDesign::Pocket", "Pocket006")
pocket7.Profile = sketch9
pocket7.setExpression("Length", "Params.pocket7_length")

sketch10 = body.newObject("Sketcher::SketchObject", "Sketch009")
sketch10.AttachmentSupport = (doc.getObject("XY_Plane"), [""])
sketch10.MapMode = "FlatFace"
sketch10.addGeometry(Part.LineSegment(Vector(140, 119, 0), Vector(140, 101, 0)), False)
sketch10.addGeometry(Part.LineSegment(Vector(140, 101, 0), Vector(20, 101, 0)), False)
sketch10.addGeometry(Part.LineSegment(Vector(20, 101, 0), Vector(20, 119, 0)), False)
sketch10.addGeometry(Part.LineSegment(Vector(20, 119, 0), Vector(140, 119, 0)), False)
sketch10.addGeometry(Part.LineSegment(Vector(140, 26, 0), Vector(140, 9, 0)), False)
sketch10.addGeometry(Part.LineSegment(Vector(140, 9, 0), Vector(17, 9, 0)), False)
sketch10.addGeometry(Part.LineSegment(Vector(17, 9, 0), Vector(17, 26, 0)), False)
sketch10.addGeometry(Part.LineSegment(Vector(17, 26, 0), Vector(140, 26, 0)), False)
sketch10.addConstraint(Sketcher.Constraint("Coincident", 0, 2, 1, 1))
sketch10.addConstraint(Sketcher.Constraint("Coincident", 1, 2, 2, 1))
sketch10.addConstraint(Sketcher.Constraint("Coincident", 2, 2, 3, 1))
sketch10.addConstraint(Sketcher.Constraint("Coincident", 3, 2, 0, 1))
sketch10.addConstraint(Sketcher.Constraint("Coincident", 4, 2, 5, 1))
sketch10.addConstraint(Sketcher.Constraint("Coincident", 5, 2, 6, 1))
sketch10.addConstraint(Sketcher.Constraint("Coincident", 6, 2, 7, 1))
sketch10.addConstraint(Sketcher.Constraint("Coincident", 7, 2, 4, 1))
sketch10.addConstraint(Sketcher.Constraint("Vertical", 0))
sketch10.addConstraint(Sketcher.Constraint("Horizontal", 1))
sketch10.addConstraint(Sketcher.Constraint("Vertical", 2))
sketch10.addConstraint(Sketcher.Constraint("Horizontal", 3))
sketch10.addConstraint(Sketcher.Constraint("Vertical", 4))
sketch10.addConstraint(Sketcher.Constraint("Horizontal", 5))
sketch10.addConstraint(Sketcher.Constraint("Vertical", 6))
sketch10.addConstraint(Sketcher.Constraint("Horizontal", 7))
sketch10.addConstraint(Sketcher.Constraint("Vertical", 3, 2, 4, 2))
sketch10.addConstraint(Sketcher.Constraint("Equal", 2, 4))
sketch10.addConstraint(Sketcher.Constraint("DistanceY", 0, 2, 0, 1, 17.5))
sketch10.addConstraint(Sketcher.Constraint("DistanceY", 4, 2, 3, 2, 110.0))
sketch10.addConstraint(Sketcher.Constraint("DistanceX", 5, 2, 5, 1, 122.159119))
sketch10.addConstraint(Sketcher.Constraint("DistanceX", 1, 2, 1, 1, 119.536996))
sketch10.addConstraint(Sketcher.Constraint("DistanceX", -1, 1, 0, 2, 139.554764))
sketch10.addConstraint(Sketcher.Constraint("DistanceY", -1, 1, 0, 2, 101.037865))
sketch10.setExpression("Constraints[18]", "Params.sketch10_height")
pocket8 = body.newObject("PartDesign::Pocket", "Pocket007")
pocket8.Profile = sketch10
pocket8.setExpression("Length", "Params.pocket8_length")
pocket8.Reversed = True

sketch11 = body.newObject("Sketcher::SketchObject", "Sketch010")
sketch11.AttachmentSupport = (doc.getObject("XY_Plane"), [""])
sketch11.MapMode = "FlatFace"
sketch11.AttachmentOffset = App.Placement(Vector(0, 0, 14), App.Rotation())
sketch11.addGeometry(Part.Circle(Vector(44.6, 111, 0), Vector(0, 0, 1), 4.5), False)
sketch11.addGeometry(Part.Circle(Vector(84.6, 111, 0), Vector(0, 0, 1), 4.5), False)
sketch11.addGeometry(Part.Circle(Vector(129.5, 111.1, 0), Vector(0, 0, 1), 4.5), False)
sketch11.addGeometry(Part.Circle(Vector(129.6, 16, 0), Vector(0, 0, 1), 4.5), False)
sketch11.addGeometry(Part.Circle(Vector(84.6, 16, 0), Vector(0, 0, 1), 4.5), False)
sketch11.addGeometry(Part.Circle(Vector(39.6, 16, 0), Vector(0, 0, 1), 4.5), False)
sketch11.addConstraint(Sketcher.Constraint("Equal", 0, 1))
sketch11.addConstraint(Sketcher.Constraint("Equal", 1, 2))
sketch11.addConstraint(Sketcher.Constraint("Equal", 2, 3))
sketch11.addConstraint(Sketcher.Constraint("Equal", 3, 4))
sketch11.addConstraint(Sketcher.Constraint("Equal", 4, 5))
sketch11.addConstraint(Sketcher.Constraint("Horizontal", 0, 3, 1, 3))
sketch11.addConstraint(Sketcher.Constraint("Horizontal", 3, 3, 4, 3))
sketch11.addConstraint(Sketcher.Constraint("Horizontal", 4, 3, 5, 3))
sketch11.addConstraint(Sketcher.Constraint("Vertical", 1, 3, 4, 3))
sketch11.addConstraint(Sketcher.Constraint("Diameter", 0, 9.0))
sketch11.addConstraint(Sketcher.Constraint("DistanceX", 0, 3, 1, 3, 40.0))
sketch11.addConstraint(Sketcher.Constraint("DistanceX", 1, 3, 3, 3, 45.0))
sketch11.addConstraint(Sketcher.Constraint("DistanceY", 3, 3, 1, 3, 95.0))
sketch11.addConstraint(Sketcher.Constraint("DistanceX", 5, 3, 4, 3, 45.0))
sketch11.addConstraint(Sketcher.Constraint("DistanceX", -1, 1, 0, 3, 44.554764))
sketch11.addConstraint(Sketcher.Constraint("DistanceY", -1, 1, 0, 3, 111.037865))
sketch11.addConstraint(Sketcher.Constraint("DistanceX", -1, 1, 2, 3, 129.513886))
sketch11.addConstraint(Sketcher.Constraint("DistanceY", -1, 1, 2, 3, 111.061183))
sketch11.setExpression("Constraints[9]", "Params.sketch11_diameter")
pocket9 = body.newObject("PartDesign::Pocket", "Pocket008")
pocket9.Profile = sketch11
pocket9.setExpression("Length", "Params.pocket9_length")
pocket9.Reversed = True

sketch12 = body.newObject("Sketcher::SketchObject", "Sketch011")
sketch12.AttachmentSupport = (doc.getObject("XY_Plane"), [""])
sketch12.MapMode = "FlatFace"
sketch12.addGeometry(Part.Circle(Vector(41.6, 63.5, 0), Vector(0, 0, 1), 3.9), False)
sketch12.addGeometry(Part.Circle(Vector(135.6, 63.5, 0), Vector(0, 0, 1), 3), False)
sketch12.addConstraint(Sketcher.Constraint("Horizontal", 0, 3, 1, 3))
sketch12.addConstraint(Sketcher.Constraint("DistanceX", 0, 3, 1, 3, 94.0))
sketch12.addConstraint(Sketcher.Constraint("Diameter", 1, 5.95463))
sketch12.addConstraint(Sketcher.Constraint("Diameter", 0, 7.791848))
sketch12.addConstraint(Sketcher.Constraint("DistanceX", -1, 1, 0, 3, 41.554764))
sketch12.addConstraint(Sketcher.Constraint("DistanceY", -1, 1, 0, 3, 63.537865))
pad3 = body.newObject("PartDesign::Pad", "Pad002")
pad3.Profile = sketch12
pad3.setExpression("Length", "Params.pad3_length")

sketch13 = body.newObject("Sketcher::SketchObject", "Sketch012")
sketch13.AttachmentSupport = (doc.getObject("XY_Plane"), [""])
sketch13.MapMode = "FlatFace"
sketch13.AttachmentOffset = App.Placement(Vector(0, 0, 15), App.Rotation())
sketch13.addGeometry(Part.LineSegment(Vector(43.6, 66.9, 0), Vector(43.6, 60.2, 0)), False)
sketch13.addGeometry(Part.ArcOfCircle(Part.Circle(Vector(41.6, 63.5, 0), Vector(0, 0, 1), 3.9), math.radians(-59), math.radians(59)), False)
sketch13.addConstraint(Sketcher.Constraint("Coincident", 0, 1, 1, 2))
sketch13.addConstraint(Sketcher.Constraint("Coincident", 1, 1, 0, 2))
sketch13.addConstraint(Sketcher.Constraint("Vertical", 0))
sketch13.addConstraint(Sketcher.Constraint("Radius", 1, 3.895924))
sketch13.addConstraint(Sketcher.Constraint("DistanceY", 0, 2, 0, 1, 6.682644))
sketch13.addConstraint(Sketcher.Constraint("DistanceX", -1, 1, 0, 1, 43.558209))
sketch13.addConstraint(Sketcher.Constraint("DistanceY", -1, 1, 1, 3, 63.537865))
pocket10 = body.newObject("PartDesign::Pocket", "Pocket009")
pocket10.Profile = sketch13
pocket10.setExpression("Length", "Params.pocket10_length")
pocket10.Reversed = True

sketch14 = body.newObject("Sketcher::SketchObject", "Sketch013")
sketch14.AttachmentSupport = (doc.getObject("XY_Plane"), [""])
sketch14.MapMode = "FlatFace"
sketch14.addGeometry(Part.Circle(Vector(37.7, 64, 0), Vector(0, 0, 1), 3), False)
sketch14.addGeometry(Part.Circle(Vector(131.7, 64, 0), Vector(0, 0, 1), 4), False)
sketch14.addConstraint(Sketcher.Constraint("Horizontal", 0, 3, 1, 3))
sketch14.addConstraint(Sketcher.Constraint("Diameter", 0, 6.0))
sketch14.addConstraint(Sketcher.Constraint("Diameter", 1, 8.0))
sketch14.addConstraint(Sketcher.Constraint("DistanceX", 0, 3, 1, 3, 94.0))
sketch14.addConstraint(Sketcher.Constraint("DistanceX", -1, 1, 0, 3, 37.650597))
sketch14.addConstraint(Sketcher.Constraint("DistanceY", -1, 1, 0, 3, 64.010567))
sketch14.setExpression("Constraints[1]", "Params.sketch14_diameter")
sketch14.setExpression("Constraints[2]", "Params.sketch14_diameter2")
pocket11 = body.newObject("PartDesign::Pocket", "Pocket010")
pocket11.Profile = sketch14
pocket11.setExpression("Length", "Params.pocket11_length")
pocket11.Reversed = True

doc.recompute()
